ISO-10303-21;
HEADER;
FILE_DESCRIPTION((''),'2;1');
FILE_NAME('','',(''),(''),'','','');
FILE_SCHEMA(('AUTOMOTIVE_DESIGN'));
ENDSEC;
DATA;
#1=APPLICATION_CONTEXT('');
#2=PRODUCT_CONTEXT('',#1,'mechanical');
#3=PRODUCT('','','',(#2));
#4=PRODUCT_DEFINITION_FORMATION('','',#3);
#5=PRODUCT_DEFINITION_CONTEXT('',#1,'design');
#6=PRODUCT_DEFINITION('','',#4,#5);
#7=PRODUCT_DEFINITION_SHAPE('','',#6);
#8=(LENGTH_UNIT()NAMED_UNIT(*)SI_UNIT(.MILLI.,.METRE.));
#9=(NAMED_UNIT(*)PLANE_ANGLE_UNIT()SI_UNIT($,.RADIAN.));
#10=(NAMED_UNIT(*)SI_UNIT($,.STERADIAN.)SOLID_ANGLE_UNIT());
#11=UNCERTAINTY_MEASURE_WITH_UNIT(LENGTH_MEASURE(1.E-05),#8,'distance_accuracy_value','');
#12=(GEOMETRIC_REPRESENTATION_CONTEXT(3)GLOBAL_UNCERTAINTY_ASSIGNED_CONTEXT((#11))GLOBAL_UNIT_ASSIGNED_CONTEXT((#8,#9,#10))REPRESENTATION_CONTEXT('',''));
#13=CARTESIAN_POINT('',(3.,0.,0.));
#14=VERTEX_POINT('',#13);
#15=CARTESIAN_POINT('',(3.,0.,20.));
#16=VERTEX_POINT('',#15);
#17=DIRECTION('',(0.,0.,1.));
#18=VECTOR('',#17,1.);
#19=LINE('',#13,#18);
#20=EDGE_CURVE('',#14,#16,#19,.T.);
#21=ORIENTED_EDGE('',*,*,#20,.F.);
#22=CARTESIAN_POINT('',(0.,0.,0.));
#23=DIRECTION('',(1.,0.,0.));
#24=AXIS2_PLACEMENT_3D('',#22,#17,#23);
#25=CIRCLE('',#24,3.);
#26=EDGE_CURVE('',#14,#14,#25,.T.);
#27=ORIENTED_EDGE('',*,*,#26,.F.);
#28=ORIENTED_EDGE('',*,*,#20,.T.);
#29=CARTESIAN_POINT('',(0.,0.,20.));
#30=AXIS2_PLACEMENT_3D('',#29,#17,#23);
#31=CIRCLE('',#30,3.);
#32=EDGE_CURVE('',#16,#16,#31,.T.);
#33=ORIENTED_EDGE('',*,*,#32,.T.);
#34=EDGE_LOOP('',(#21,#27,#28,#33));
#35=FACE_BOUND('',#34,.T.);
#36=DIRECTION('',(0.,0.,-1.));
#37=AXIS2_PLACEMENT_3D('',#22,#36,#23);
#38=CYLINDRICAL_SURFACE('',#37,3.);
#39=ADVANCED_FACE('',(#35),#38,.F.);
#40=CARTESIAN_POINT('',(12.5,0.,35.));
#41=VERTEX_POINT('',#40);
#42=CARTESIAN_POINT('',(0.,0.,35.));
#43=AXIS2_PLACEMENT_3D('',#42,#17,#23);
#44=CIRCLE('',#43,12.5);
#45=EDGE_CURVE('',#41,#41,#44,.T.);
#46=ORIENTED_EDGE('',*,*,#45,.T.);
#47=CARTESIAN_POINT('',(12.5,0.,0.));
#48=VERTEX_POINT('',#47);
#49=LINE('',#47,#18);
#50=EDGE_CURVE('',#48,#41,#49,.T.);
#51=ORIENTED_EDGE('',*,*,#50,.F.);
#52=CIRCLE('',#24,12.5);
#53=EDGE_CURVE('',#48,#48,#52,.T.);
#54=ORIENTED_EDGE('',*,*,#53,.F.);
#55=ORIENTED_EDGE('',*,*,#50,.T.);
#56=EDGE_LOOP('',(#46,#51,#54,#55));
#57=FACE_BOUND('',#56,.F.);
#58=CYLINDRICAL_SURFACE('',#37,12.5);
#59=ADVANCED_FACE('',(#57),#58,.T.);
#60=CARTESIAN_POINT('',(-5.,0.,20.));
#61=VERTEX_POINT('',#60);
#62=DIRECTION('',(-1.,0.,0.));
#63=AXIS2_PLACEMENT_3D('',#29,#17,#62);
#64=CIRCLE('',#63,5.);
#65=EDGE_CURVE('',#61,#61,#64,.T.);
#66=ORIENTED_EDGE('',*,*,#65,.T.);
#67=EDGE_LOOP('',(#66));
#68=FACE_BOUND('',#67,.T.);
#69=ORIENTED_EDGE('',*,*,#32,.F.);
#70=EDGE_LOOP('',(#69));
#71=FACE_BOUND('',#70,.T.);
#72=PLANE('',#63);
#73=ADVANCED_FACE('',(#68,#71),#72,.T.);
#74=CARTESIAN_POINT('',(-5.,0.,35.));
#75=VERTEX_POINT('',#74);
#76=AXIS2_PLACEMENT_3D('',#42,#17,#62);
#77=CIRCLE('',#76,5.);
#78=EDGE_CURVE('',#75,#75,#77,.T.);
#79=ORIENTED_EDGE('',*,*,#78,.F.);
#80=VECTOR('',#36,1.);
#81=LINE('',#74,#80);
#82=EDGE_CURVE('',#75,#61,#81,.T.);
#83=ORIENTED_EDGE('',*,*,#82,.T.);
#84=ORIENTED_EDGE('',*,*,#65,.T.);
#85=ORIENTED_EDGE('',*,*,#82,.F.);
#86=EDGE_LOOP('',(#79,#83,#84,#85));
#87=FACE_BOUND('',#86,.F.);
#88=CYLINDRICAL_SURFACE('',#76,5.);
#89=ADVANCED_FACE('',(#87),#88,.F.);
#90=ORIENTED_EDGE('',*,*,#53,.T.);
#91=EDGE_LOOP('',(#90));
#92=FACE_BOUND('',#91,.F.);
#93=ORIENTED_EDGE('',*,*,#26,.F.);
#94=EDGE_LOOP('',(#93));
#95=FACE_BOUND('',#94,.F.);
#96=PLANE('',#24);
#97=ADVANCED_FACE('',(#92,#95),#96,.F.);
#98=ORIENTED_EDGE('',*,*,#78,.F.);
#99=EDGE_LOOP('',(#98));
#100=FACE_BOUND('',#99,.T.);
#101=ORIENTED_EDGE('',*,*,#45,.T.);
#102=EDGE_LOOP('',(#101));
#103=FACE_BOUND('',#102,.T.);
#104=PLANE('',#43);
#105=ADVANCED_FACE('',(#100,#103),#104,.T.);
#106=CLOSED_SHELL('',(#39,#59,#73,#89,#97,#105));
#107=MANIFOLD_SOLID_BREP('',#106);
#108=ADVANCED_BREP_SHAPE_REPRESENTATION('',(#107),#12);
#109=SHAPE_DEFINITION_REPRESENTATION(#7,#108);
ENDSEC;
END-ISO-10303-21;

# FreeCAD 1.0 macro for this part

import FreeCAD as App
import Part
import Sketcher
from FreeCAD import Vector
Q = App.Units.Quantity

doc = App.newDocument("Part")
params = doc.addObject("Spreadsheet::Sheet", "Params")
for row, (alias, value) in enumerate([
    ("sketch1_diameter", "25 mm"),
    ("sketch1_diameter2", "6 mm"),
    ("pad1_length", "35 mm"),
    ("sketch2_diameter", "10 mm"),
    ("sketch2_diameter2", "6 mm"),
    ("pocket1_length", "15 mm"),
], start=1):
    params.set(f"A{row}", alias)
    params.set(f"B{row}", "=" + value)
    params.setAlias(f"B{row}", alias)

body = doc.addObject("PartDesign::Body", "Body")

# Sketch on XY plane
sketch1 = body.newObject("Sketcher::SketchObject", "Sketch")
sketch1.AttachmentSupport = (doc.getObject("XY_Plane"), [""])
sketch1.MapMode = "FlatFace"
sketch1.addGeometry([
    Part.Circle(Vector(0, 0, 0), Vector(0, 0, 1), 12.5),
    Part.Circle(Vector(0, 0, 0), Vector(0, 0, 1), 3),
], False)
sketch1.addConstraint([
    Sketcher.Constraint("Coincident", 0, 3, -1, 1),
    Sketcher.Constraint("Coincident", 1, 3, -1, 1),
    Sketcher.Constraint("Diameter", 0, Q("25 mm")),
    Sketcher.Constraint("Diameter", 1, Q("6 mm")),
])
sketch1.setExpression("Constraints[2]", "Params.sketch1_diameter")
sketch1.setExpression("Constraints[3]", "Params.sketch1_diameter2")
pad1 = body.newObject("PartDesign::Pad", "Pad")
pad1.Profile = sketch1
pad1.setExpression("Length", "Params.pad1_length")

# Sketch on XY plane
sketch2 = body.newObject("Sketcher::SketchObject", "Sketch001")
sketch2.AttachmentSupport = (doc.getObject("XY_Plane"), [""])
sketch2.MapMode = "FlatFace"
sketch2.AttachmentOffset = App.Placement(Vector(0, 0, 35), App.Rotation())
sketch2.addGeometry([
    Part.Circle(Vector(0, 0, 0), Vector(0, 0, 1), 5),
    Part.Circle(Vector(0, 0, 0), Vector(0, 0, 1), 3),
], False)
sketch2.addConstraint([
    Sketcher.Constraint("Coincident", 0, 3, -1, 1),
    Sketcher.Constraint("Coincident", 1, 3, -1, 1),
    Sketcher.Constraint("Diameter", 0, Q("10 mm")),
    Sketcher.Constraint("Diameter", 1, Q("6 mm")),
])
sketch2.setExpression("Constraints[2]", "Params.sketch2_diameter")
sketch2.setExpression("Constraints[3]", "Params.sketch2_diameter2")
pocket1 = body.newObject("PartDesign::Pocket", "Pocket")
pocket1.Profile = sketch2
pocket1.setExpression("Length", "Params.pocket1_length")

doc.recompute()
